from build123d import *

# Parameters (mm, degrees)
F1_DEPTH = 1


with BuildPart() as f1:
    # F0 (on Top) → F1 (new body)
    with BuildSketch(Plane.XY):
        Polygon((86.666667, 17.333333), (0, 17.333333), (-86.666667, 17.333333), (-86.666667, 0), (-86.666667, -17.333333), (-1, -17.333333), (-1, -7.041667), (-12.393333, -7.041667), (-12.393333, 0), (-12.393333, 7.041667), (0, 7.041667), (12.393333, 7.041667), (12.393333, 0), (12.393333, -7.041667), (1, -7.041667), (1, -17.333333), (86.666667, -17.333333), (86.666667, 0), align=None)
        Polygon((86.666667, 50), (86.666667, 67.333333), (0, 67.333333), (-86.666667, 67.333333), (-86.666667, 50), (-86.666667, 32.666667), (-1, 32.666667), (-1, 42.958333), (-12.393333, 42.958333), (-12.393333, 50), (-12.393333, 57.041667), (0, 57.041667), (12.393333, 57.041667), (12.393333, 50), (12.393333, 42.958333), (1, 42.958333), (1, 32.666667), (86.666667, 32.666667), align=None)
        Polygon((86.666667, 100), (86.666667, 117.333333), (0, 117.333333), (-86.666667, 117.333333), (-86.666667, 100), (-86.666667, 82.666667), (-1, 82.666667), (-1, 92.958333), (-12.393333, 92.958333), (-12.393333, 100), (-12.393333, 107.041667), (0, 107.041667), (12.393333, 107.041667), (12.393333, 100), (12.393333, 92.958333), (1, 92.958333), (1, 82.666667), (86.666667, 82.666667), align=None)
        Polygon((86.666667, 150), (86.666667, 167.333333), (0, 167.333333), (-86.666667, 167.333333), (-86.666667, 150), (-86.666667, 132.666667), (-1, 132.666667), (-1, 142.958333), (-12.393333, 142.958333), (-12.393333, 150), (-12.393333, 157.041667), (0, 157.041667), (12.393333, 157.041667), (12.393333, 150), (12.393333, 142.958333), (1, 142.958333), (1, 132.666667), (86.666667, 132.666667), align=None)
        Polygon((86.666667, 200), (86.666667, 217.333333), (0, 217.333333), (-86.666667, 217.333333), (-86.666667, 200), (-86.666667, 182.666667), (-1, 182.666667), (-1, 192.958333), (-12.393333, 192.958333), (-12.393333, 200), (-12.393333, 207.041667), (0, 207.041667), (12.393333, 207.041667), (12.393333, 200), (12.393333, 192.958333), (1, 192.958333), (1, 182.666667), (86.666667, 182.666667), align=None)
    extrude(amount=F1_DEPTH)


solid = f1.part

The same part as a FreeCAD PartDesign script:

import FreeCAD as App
import Part
import Sketcher


def add_polygon(sketch, points):
    """Adds a closed chain of lines whose ends are joined by coincident constraints."""
    first, n = sketch.GeometryCount, len(points)
    for a, b in zip(points, points[1:] + points[:1]):
        sketch.addGeometry(Part.LineSegment(App.Vector(*a, 0), App.Vector(*b, 0)), False)
    for i in range(n):
        sketch.addConstraint(Sketcher.Constraint("Coincident", first + i, 2, first + (i + 1) % n, 1))

doc = App.newDocument("Part")
params = doc.addObject("Spreadsheet::Sheet", "Params")
for row, (alias, value) in enumerate([
    ("pad1_length", "1 mm"),
], start=1):
    params.set(f"A{row}", alias)
    params.set(f"B{row}", "=" + value)
    params.setAlias(f"B{row}", alias)

body = doc.addObject("PartDesign::Body", "Body")
body.AllowCompound = True

# Sketch on XY plane
sketch1 = body.newObject("Sketcher::SketchObject", "Sketch")
sketch1.AttachmentSupport = (doc.getObject("XY_Plane"), [""])
sketch1.MapMode = "FlatFace"
add_polygon(sketch1, [(87, 17), (-87, 17), (-87, -17), (-1, -17), (-1, -7), (-12, -7), (-12, 7), (12, 7), (12, -7), (1, -7), (1, -17), (87, -17)])  # lines 0-11
add_polygon(sketch1, [(87, 67), (-87, 67), (-87, 33), (-1, 33), (-1, 43), (-12, 43), (-12, 57), (12, 57), (12, 43), (1, 43), (1, 33), (87, 33)])  # lines 12-23
add_polygon(sketch1, [(87, 117), (-87, 117), (-87, 83), (-1, 83), (-1, 93), (-12, 93), (-12, 107), (12, 107), (12, 93), (1, 93), (1, 83), (87, 83)])  # lines 24-35
add_polygon(sketch1, [(87, 167), (-87, 167), (-87, 133), (-1, 133), (-1, 143), (-12, 143), (-12, 157), (12, 157), (12, 143), (1, 143), (1, 133), (87, 133)])  # lines 36-47
add_polygon(sketch1, [(87, 217), (-87, 217), (-87, 183), (-1, 183), (-1, 193), (-12, 193), (-12, 207), (12, 207), (12, 193), (1, 193), (1, 183), (87, 183)])  # lines 48-59
sketch1.addConstraint(Sketcher.Constraint("Horizontal", 0))
sketch1.addConstraint(Sketcher.Constraint("Vertical", 1))
sketch1.addConstraint(Sketcher.Constraint("Horizontal", 2))
sketch1.addConstraint(Sketcher.Constraint("Vertical", 3))
sketch1.addConstraint(Sketcher.Constraint("Horizontal", 4))
sketch1.addConstraint(Sketcher.Constraint("Vertical", 5))
sketch1.addConstraint(Sketcher.Constraint("Horizontal", 6))
sketch1.addConstraint(Sketcher.Constraint("Vertical", 7))
sketch1.addConstraint(Sketcher.Constraint("Horizontal", 8))
sketch1.addConstraint(Sketcher.Constraint("Vertical", 9))
sketch1.addConstraint(Sketcher.Constraint("Horizontal", 10))
sketch1.addConstraint(Sketcher.Constraint("Vertical", 11))
sketch1.addConstraint(Sketcher.Constraint("Horizontal", 12))
sketch1.addConstraint(Sketcher.Constraint("Vertical", 13))
sketch1.addConstraint(Sketcher.Constraint("Horizontal", 14))
sketch1.addConstraint(Sketcher.Constraint("Vertical", 15))
sketch1.addConstraint(Sketcher.Constraint("Horizontal", 16))
sketch1.addConstraint(Sketcher.Constraint("Vertical", 17))
sketch1.addConstraint(Sketcher.Constraint("Horizontal", 18))
sketch1.addConstraint(Sketcher.Constraint("Vertical", 19))
sketch1.addConstraint(Sketcher.Constraint("Horizontal", 20))
sketch1.addConstraint(Sketcher.Constraint("Vertical", 21))
sketch1.addConstraint(Sketcher.Constraint("Horizontal", 22))
sketch1.addConstraint(Sketcher.Constraint("Vertical", 23))
sketch1.addConstraint(Sketcher.Constraint("Horizontal", 24))
sketch1.addConstraint(Sketcher.Constraint("Vertical", 25))
sketch1.addConstraint(Sketcher.Constraint("Horizontal", 26))
sketch1.addConstraint(Sketcher.Constraint("Vertical", 27))
sketch1.addConstraint(Sketcher.Constraint("Horizontal", 28))
sketch1.addConstraint(Sketcher.Constraint("Vertical", 29))
sketch1.addConstraint(Sketcher.Constraint("Horizontal", 30))
sketch1.addConstraint(Sketcher.Constraint("Vertical", 31))
sketch1.addConstraint(Sketcher.Constraint("Horizontal", 32))
sketch1.addConstraint(Sketcher.Constraint("Vertical", 33))
sketch1.addConstraint(Sketcher.Constraint("Horizontal", 34))
sketch1.addConstraint(Sketcher.Constraint("Vertical", 35))
sketch1.addConstraint(Sketcher.Constraint("Horizontal", 36))
sketch1.addConstraint(Sketcher.Constraint("Vertical", 37))
sketch1.addConstraint(Sketcher.Constraint("Horizontal", 38))
sketch1.addConstraint(Sketcher.Constraint("Vertical", 39))
sketch1.addConstraint(Sketcher.Constraint("Horizontal", 40))
sketch1.addConstraint(Sketcher.Constraint("Vertical", 41))
sketch1.addConstraint(Sketcher.Constraint("Horizontal", 42))
sketch1.addConstraint(Sketcher.Constraint("Vertical", 43))
sketch1.addConstraint(Sketcher.Constraint("Horizontal", 44))
sketch1.addConstraint(Sketcher.Constraint("Vertical", 45))
sketch1.addConstraint(Sketcher.Constraint("Horizontal", 46))
sketch1.addConstraint(Sketcher.Constraint("Vertical", 47))
sketch1.addConstraint(Sketcher.Constraint("Horizontal", 48))
sketch1.addConstraint(Sketcher.Constraint("Vertical", 49))
sketch1.addConstraint(Sketcher.Constraint("Horizontal", 50))
sketch1.addConstraint(Sketcher.Constraint("Vertical", 51))
sketch1.addConstraint(Sketcher.Constraint("Horizontal", 52))
sketch1.addConstraint(Sketcher.Constraint("Vertical", 53))
sketch1.addConstraint(Sketcher.Constraint("Horizontal", 54))
sketch1.addConstraint(Sketcher.Constraint("Vertical", 55))
sketch1.addConstraint(Sketcher.Constraint("Horizontal", 56))
sketch1.addConstraint(Sketcher.Constraint("Vertical", 57))
sketch1.addConstraint(Sketcher.Constraint("Horizontal", 58))
sketch1.addConstraint(Sketcher.Constraint("Vertical", 59))
sketch1.addConstraint(Sketcher.Constraint("Symmetric", 4, 2, 6, 2, -1, 1))
sketch1.addConstraint(Sketcher.Constraint("Symmetric", 0, 2, 10, 2, -1, 1))
sketch1.addConstraint(Sketcher.Constraint("Symmetric", 3, 2, 8, 2, -2))
sketch1.addConstraint(Sketcher.Constraint("Symmetric", 16, 2, 19, 2, -2))
sketch1.addConstraint(Sketcher.Constraint("Symmetric", 14, 2, 21, 2, -2))
sketch1.addConstraint(Sketcher.Constraint("Symmetric", 28, 2, 31, 2, -2))
sketch1.addConstraint(Sketcher.Constraint("Symmetric", 26, 2, 33, 2, -2))
sketch1.addConstraint(Sketcher.Constraint("Symmetric", 40, 2, 43, 2, -2))
sketch1.addConstraint(Sketcher.Constraint("Symmetric", 38, 2, 45, 2, -2))
sketch1.addConstraint(Sketcher.Constraint("Symmetric", 52, 2, 55, 2, -2))
sketch1.addConstraint(Sketcher.Constraint("Symmetric", 50, 2, 57, 2, -2))
sketch1.addConstraint(Sketcher.Constraint("Horizontal", 2, 2, 9, 2))
sketch1.addConstraint(Sketcher.Constraint("Vertical", 1, 2, 12, 2))
sketch1.addConstraint(Sketcher.Constraint("Vertical", 3, 2, 14, 2))
sketch1.addConstraint(Sketcher.Constraint("Vertical", 5, 2, 16, 2))
sketch1.addConstraint(Sketcher.Constraint("Vertical", 11, 2, 22, 2))
sketch1.addConstraint(Sketcher.Constraint("Vertical", 13, 2, 24, 2))
sketch1.addConstraint(Sketcher.Constraint("Vertical", 15, 2, 26, 2))
sketch1.addConstraint(Sketcher.Constraint("Vertical", 17, 2, 28, 2))
sketch1.addConstraint(Sketcher.Constraint("Vertical", 23, 2, 34, 2))
sketch1.addConstraint(Sketcher.Constraint("Vertical", 25, 2, 36, 2))
sketch1.addConstraint(Sketcher.Constraint("Vertical", 27, 2, 38, 2))
sketch1.addConstraint(Sketcher.Constraint("Vertical", 29, 2, 40, 2))
sketch1.addConstraint(Sketcher.Constraint("Vertical", 35, 2, 46, 2))
sketch1.addConstraint(Sketcher.Constraint("Vertical", 37, 2, 48, 2))
sketch1.addConstraint(Sketcher.Constraint("Vertical", 39, 2, 50, 2))
sketch1.addConstraint(Sketcher.Constraint("Vertical", 41, 2, 52, 2))
sketch1.addConstraint(Sketcher.Constraint("Vertical", 47, 2, 58, 2))
sketch1.addConstraint(Sketcher.Constraint("Equal", 11, 13))
sketch1.addConstraint(Sketcher.Constraint("Equal", 9, 15))
sketch1.addConstraint(Sketcher.Constraint("Equal", 7, 17))
sketch1.addConstraint(Sketcher.Constraint("Equal", 23, 25))
sketch1.addConstraint(Sketcher.Constraint("Equal", 21, 27))
sketch1.addConstraint(Sketcher.Constraint("Equal", 19, 29))
sketch1.addConstraint(Sketcher.Constraint("Equal", 35, 37))
sketch1.addConstraint(Sketcher.Constraint("Equal", 33, 39))
sketch1.addConstraint(Sketcher.Constraint("Equal", 31, 41))
sketch1.addConstraint(Sketcher.Constraint("Equal", 47, 49))
sketch1.addConstraint(Sketcher.Constraint("Equal", 45, 51))
sketch1.addConstraint(Sketcher.Constraint("Equal", 43, 53))
sketch1.addConstraint(Sketcher.Constraint("DistanceX", 2, 2, -1, 1, 1.0))
sketch1.addConstraint(Sketcher.Constraint("DistanceY", 0, 2, 12, 2, 50.0))
sketch1.addConstraint(Sketcher.Constraint("DistanceY", 12, 2, 24, 2, 50.0))
sketch1.addConstraint(Sketcher.Constraint("DistanceY", 24, 2, 36, 2, 50.0))
sketch1.addConstraint(Sketcher.Constraint("DistanceY", 36, 2, 48, 2, 50.0))
sketch1.addConstraint(Sketcher.Constraint("DistanceX", 0, 2, 6, 2, 99.06))
sketch1.addConstraint(Sketcher.Constraint("DistanceY", 3, 2, 0, 2, 24.375))
sketch1.addConstraint(Sketcher.Constraint("DistanceX", 0, 2, 0, 1, 173.333334))
sketch1.addConstraint(Sketcher.Constraint("DistanceY", 1, 2, 1, 1, 34.666666))
pad1 = body.newObject("PartDesign::Pad", "Pad")
pad1.Profile = sketch1
pad1.setExpression("Length", "Params.pad1_length")

doc.recompute()
